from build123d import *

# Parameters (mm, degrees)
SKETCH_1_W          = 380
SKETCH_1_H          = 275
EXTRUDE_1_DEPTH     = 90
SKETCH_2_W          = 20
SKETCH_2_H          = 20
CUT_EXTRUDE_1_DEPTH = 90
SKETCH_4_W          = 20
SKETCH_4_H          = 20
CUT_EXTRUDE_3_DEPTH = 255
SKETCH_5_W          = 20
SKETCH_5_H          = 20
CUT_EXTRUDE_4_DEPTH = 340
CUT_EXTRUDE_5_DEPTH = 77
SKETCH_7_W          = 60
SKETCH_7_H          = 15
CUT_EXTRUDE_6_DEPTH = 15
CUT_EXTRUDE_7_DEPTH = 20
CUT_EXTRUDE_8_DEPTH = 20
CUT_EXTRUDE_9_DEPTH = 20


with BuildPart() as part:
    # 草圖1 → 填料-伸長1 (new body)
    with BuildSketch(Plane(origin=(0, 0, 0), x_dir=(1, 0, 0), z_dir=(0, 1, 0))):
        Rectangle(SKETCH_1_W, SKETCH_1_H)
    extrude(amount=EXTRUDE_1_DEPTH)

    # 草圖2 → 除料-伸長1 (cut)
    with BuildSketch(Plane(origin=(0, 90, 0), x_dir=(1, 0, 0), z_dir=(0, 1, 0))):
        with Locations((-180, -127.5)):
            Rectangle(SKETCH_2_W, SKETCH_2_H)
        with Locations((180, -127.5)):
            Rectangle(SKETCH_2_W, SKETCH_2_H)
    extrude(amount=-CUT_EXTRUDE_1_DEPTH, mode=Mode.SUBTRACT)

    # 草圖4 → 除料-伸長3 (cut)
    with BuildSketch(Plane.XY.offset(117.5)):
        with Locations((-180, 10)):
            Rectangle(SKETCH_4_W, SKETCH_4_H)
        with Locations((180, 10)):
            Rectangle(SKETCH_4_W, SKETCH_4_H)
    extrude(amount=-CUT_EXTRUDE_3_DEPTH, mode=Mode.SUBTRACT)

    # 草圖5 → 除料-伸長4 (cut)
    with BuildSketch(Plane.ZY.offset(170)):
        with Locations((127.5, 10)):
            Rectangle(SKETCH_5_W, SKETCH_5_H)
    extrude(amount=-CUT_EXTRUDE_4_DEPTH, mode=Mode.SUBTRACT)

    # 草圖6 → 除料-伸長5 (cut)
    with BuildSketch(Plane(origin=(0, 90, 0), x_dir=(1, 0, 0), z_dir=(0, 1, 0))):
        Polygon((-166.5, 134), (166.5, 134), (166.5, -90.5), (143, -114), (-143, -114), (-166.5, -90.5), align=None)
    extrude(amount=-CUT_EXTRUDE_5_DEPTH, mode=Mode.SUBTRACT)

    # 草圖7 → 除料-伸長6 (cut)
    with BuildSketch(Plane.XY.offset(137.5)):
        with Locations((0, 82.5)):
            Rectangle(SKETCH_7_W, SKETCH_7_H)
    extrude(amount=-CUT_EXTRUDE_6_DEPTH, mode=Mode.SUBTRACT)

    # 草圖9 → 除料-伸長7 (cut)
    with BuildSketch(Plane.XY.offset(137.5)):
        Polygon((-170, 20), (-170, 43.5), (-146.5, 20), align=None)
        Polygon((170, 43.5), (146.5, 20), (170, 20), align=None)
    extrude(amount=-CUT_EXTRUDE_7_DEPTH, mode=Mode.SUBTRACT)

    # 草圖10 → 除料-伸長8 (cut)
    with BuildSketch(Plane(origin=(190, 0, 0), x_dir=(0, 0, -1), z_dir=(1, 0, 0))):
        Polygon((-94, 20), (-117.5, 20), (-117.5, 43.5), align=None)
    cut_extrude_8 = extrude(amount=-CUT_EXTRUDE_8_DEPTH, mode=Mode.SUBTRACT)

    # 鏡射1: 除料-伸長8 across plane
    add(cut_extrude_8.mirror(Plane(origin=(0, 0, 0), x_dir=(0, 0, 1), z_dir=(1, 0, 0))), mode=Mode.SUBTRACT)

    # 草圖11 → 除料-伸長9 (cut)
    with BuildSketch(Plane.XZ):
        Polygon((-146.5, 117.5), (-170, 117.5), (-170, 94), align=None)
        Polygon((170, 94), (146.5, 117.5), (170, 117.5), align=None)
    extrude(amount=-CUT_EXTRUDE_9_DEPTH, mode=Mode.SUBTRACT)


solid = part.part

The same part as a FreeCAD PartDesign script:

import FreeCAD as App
import Part
import Sketcher

V = App.Vector
Q = App.Units.Quantity

doc = App.newDocument("Part")
params = doc.addObject("Spreadsheet::Sheet", "Params")
for row, (alias, value) in enumerate([
    ("sketch1_width", "380 mm"),
    ("sketch1_height", "275 mm"),
    ("pad1_length", "90 mm"),
    ("sketch2_width", "20 mm"),
    ("pocket1_length", "90 mm"),
    ("sketch3_width", "20 mm"),
    ("pocket2_length", "255 mm"),
    ("sketch4_width", "20 mm"),
    ("pocket3_length", "340 mm"),
    ("sketch5_width", "333 mm"),
    ("sketch5_width2", "286 mm"),
    ("sketch5_height", "224.5 mm"),
    ("pocket4_length", "77 mm"),
    ("sketch6_width", "60 mm"),
    ("sketch6_height", "15 mm"),
    ("pocket5_length", "15 mm"),
    ("sketch7_width", "23.5 mm"),
    ("pocket6_length", "20 mm"),
    ("sketch8_width", "23.5 mm"),
    ("pocket7_length", "20 mm"),
    ("sketch9_width", "23.5 mm"),
    ("pocket8_length", "20 mm"),
], start=1):
    params.set(f"A{row}", alias)
    params.set(f"B{row}", "=" + value)
    params.setAlias(f"B{row}", alias)

body = doc.addObject("PartDesign::Body", "Body")

# Sketch on XZ plane
sketch1 = doc.addObject("Sketcher::SketchObject", "Sketch")
body.addObject(sketch1)
sketch1.AttachmentSupport = (doc.XZ_Plane, [""])
sketch1.MapMode = "FlatFace"
sketch1.addGeometry([
    Part.LineSegment(V(-190, -138, 0), V(-190, 138, 0)),
    Part.LineSegment(V(-190, 138, 0), V(190, 138, 0)),
    Part.LineSegment(V(190, 138, 0), V(190, -138, 0)),
    Part.LineSegment(V(190, -138, 0), V(-190, -138, 0)),
], False)
sketch1.addConstraint([
    Sketcher.Constraint("Coincident", 0, 2, 1, 1),
    Sketcher.Constraint("Coincident", 1, 2, 2, 1),
    Sketcher.Constraint("Coincident", 2, 2, 3, 1),
    Sketcher.Constraint("Coincident", 3, 2, 0, 1),
    Sketcher.Constraint("Vertical", 0),
    Sketcher.Constraint("Horizontal", 1),
    Sketcher.Constraint("Vertical", 2),
    Sketcher.Constraint("Horizontal", 3),
    Sketcher.Constraint("Symmetric", 0, 2, 2, 2, -1, 1),
    Sketcher.Constraint("DistanceX", 1, 1, 1, 2, Q("380 mm")),
    Sketcher.Constraint("DistanceY", 0, 1, 0, 2, Q("275 mm")),
])
sketch1.setExpression("Constraints[9]", "Params.sketch1_width")
sketch1.setExpression("Constraints[10]", "Params.sketch1_height")
pad1 = doc.addObject("PartDesign::Pad", "Pad")
body.addObject(pad1)
pad1.Profile = sketch1
pad1.setExpression("Length", "Params.pad1_length")
pad1.Reversed = True

# Sketch on XZ plane
sketch2 = doc.addObject("Sketcher::SketchObject", "Sketch001")
body.addObject(sketch2)
sketch2.AttachmentSupport = (doc.XZ_Plane, [""])
sketch2.MapMode = "FlatFace"
sketch2.AttachmentOffset = App.Placement(V(0, 0, -90), App.Rotation())
sketch2.addGeometry([
    Part.LineSegment(V(-190, 118, 0), V(-190, 138, 0)),  # 0
    Part.LineSegment(V(-190, 138, 0), V(-170, 138, 0)),  # 1
    Part.LineSegment(V(-170, 138, 0), V(-170, 118, 0)),  # 2
    Part.LineSegment(V(-170, 118, 0), V(-190, 118, 0)),  # 3
    Part.LineSegment(V(170, 118, 0), V(170, 138, 0)),  # 4
    Part.LineSegment(V(170, 138, 0), V(190, 138, 0)),  # 5
    Part.LineSegment(V(190, 138, 0), V(190, 118, 0)),  # 6
    Part.LineSegment(V(190, 118, 0), V(170, 118, 0)),  # 7
], False)
sketch2.addConstraint([
    Sketcher.Constraint("Coincident", 0, 2, 1, 1),
    Sketcher.Constraint("Coincident", 1, 2, 2, 1),
    Sketcher.Constraint("Coincident", 2, 2, 3, 1),
    Sketcher.Constraint("Coincident", 3, 2, 0, 1),
    Sketcher.Constraint("Coincident", 4, 2, 5, 1),
    Sketcher.Constraint("Coincident", 5, 2, 6, 1),
    Sketcher.Constraint("Coincident", 6, 2, 7, 1),
    Sketcher.Constraint("Coincident", 7, 2, 4, 1),
    Sketcher.Constraint("Vertical", 0),
    Sketcher.Constraint("Horizontal", 1),
    Sketcher.Constraint("Vertical", 2),
    Sketcher.Constraint("Horizontal", 3),
    Sketcher.Constraint("Vertical", 4),
    Sketcher.Constraint("Horizontal", 5),
    Sketcher.Constraint("Vertical", 6),
    Sketcher.Constraint("Horizontal", 7),
    Sketcher.Constraint("Symmetric", 1, 2, 4, 2, -2),
    Sketcher.Constraint("Symmetric", 3, 2, 6, 2, -2),
    Sketcher.Constraint("Equal", 7, 0),
    Sketcher.Constraint("DistanceX", 1, 1, 1, 2, Q("20 mm")),
    Sketcher.Constraint("DistanceX", 0, 2, -1, 1, Q("190 mm")),
    Sketcher.Constraint("DistanceY", -1, 1, 0, 2, Q("137.5 mm")),
])
sketch2.setExpression("Constraints[19]", "Params.sketch2_width")
pocket1 = doc.addObject("PartDesign::Pocket", "Pocket")
body.addObject(pocket1)
pocket1.Profile = sketch2
pocket1.setExpression("Length", "Params.pocket1_length")
pocket1.Reversed = True

# Sketch on XY plane
sketch3 = doc.addObject("Sketcher::SketchObject", "Sketch002")
body.addObject(sketch3)
sketch3.AttachmentSupport = (doc.XY_Plane, [""])
sketch3.MapMode = "FlatFace"
sketch3.AttachmentOffset = App.Placement(V(0, 0, 117.5), App.Rotation())
sketch3.addGeometry([
    Part.LineSegment(V(-190, 20, 0), V(-190, 0, 0)),  # 0
    Part.LineSegment(V(-190, 0, 0), V(-170, 0, 0)),  # 1
    Part.LineSegment(V(-170, 0, 0), V(-170, 20, 0)),  # 2
    Part.LineSegment(V(-170, 20, 0), V(-190, 20, 0)),  # 3
    Part.LineSegment(V(170, 20, 0), V(170, 0, 0)),  # 4
    Part.LineSegment(V(170, 0, 0), V(190, 0, 0)),  # 5
    Part.LineSegment(V(190, 0, 0), V(190, 20, 0)),  # 6
    Part.LineSegment(V(190, 20, 0), V(170, 20, 0)),  # 7
], False)
sketch3.addConstraint([
    Sketcher.Constraint("Coincident", 0, 2, 1, 1),
    Sketcher.Constraint("Coincident", 1, 2, 2, 1),
    Sketcher.Constraint("Coincident", 2, 2, 3, 1),
    Sketcher.Constraint("Coincident", 3, 2, 0, 1),
    Sketcher.Constraint("Coincident", 4, 2, 5, 1),
    Sketcher.Constraint("Coincident", 5, 2, 6, 1),
    Sketcher.Constraint("Coincident", 6, 2, 7, 1),
    Sketcher.Constraint("Coincident", 7, 2, 4, 1),
    Sketcher.Constraint("Vertical", 0),
    Sketcher.Constraint("Horizontal", 1),
    Sketcher.Constraint("Vertical", 2),
    Sketcher.Constraint("Horizontal", 3),
    Sketcher.Constraint("Vertical", 4),
    Sketcher.Constraint("Horizontal", 5),
    Sketcher.Constraint("Vertical", 6),
    Sketcher.Constraint("Horizontal", 7),
    Sketcher.Constraint("Symmetric", 1, 2, 4, 2, -1, 1),
    Sketcher.Constraint("Symmetric", 0, 2, 5, 2, -2),
    Sketcher.Constraint("Horizontal", 3, 2, 6, 2),
    Sketcher.Constraint("Equal", 7, 0),
    Sketcher.Constraint("DistanceX", 1, 1, 1, 2, Q("20 mm")),
    Sketcher.Constraint("DistanceX", 0, 2, -1, 1, Q("190 mm")),
])
sketch3.setExpression("Constraints[20]", "Params.sketch3_width")
pocket2 = doc.addObject("PartDesign::Pocket", "Pocket001")
body.addObject(pocket2)
pocket2.Profile = sketch3
pocket2.setExpression("Length", "Params.pocket2_length")

# Sketch on YZ plane
sketch4 = doc.addObject("Sketcher::SketchObject", "Sketch003")
body.addObject(sketch4)
sketch4.AttachmentSupport = (doc.YZ_Plane, [""])
sketch4.MapMode = "FlatFace"
sketch4.AttachmentOffset = App.Placement(V(0, 0, -170), App.Rotation())
sketch4.addGeometry([
    Part.LineSegment(V(20, 118, 0), V(0, 118, 0)),
    Part.LineSegment(V(0, 118, 0), V(0, 138, 0)),
    Part.LineSegment(V(0, 138, 0), V(20, 138, 0)),
    Part.LineSegment(V(20, 138, 0), V(20, 118, 0)),
], False)
sketch4.addConstraint([
    Sketcher.Constraint("Coincident", 0, 2, 1, 1),
    Sketcher.Constraint("Coincident", 1, 2, 2, 1),
    Sketcher.Constraint("Coincident", 2, 2, 3, 1),
    Sketcher.Constraint("Coincident", 3, 2, 0, 1),
    Sketcher.Constraint("Horizontal", 0),
    Sketcher.Constraint("Vertical", 1),
    Sketcher.Constraint("Horizontal", 2),
    Sketcher.Constraint("Vertical", 3),
    Sketcher.Constraint("PointOnObject", 0, 2, -2),
    Sketcher.Constraint("Equal", 2, 1),
    Sketcher.Constraint("DistanceX", 0, 2, 0, 1, Q("20 mm")),
    Sketcher.Constraint("DistanceY", -1, 1, 0, 2, Q("117.5 mm")),
])
sketch4.setExpression("Constraints[10]", "Params.sketch4_width")
pocket3 = doc.addObject("PartDesign::Pocket", "Pocket002")
body.addObject(pocket3)
pocket3.Profile = sketch4
pocket3.setExpression("Length", "Params.pocket3_length")
pocket3.Reversed = True

# Sketch on XZ plane
sketch5 = doc.addObject("Sketcher::SketchObject", "Sketch004")
body.addObject(sketch5)
sketch5.AttachmentSupport = (doc.XZ_Plane, [""])
sketch5.MapMode = "FlatFace"
sketch5.AttachmentOffset = App.Placement(V(0, 0, -90), App.Rotation())
sketch5.addGeometry([
    Part.LineSegment(V(166, -134, 0), V(-166, -134, 0)),  # 0
    Part.LineSegment(V(-166, -134, 0), V(-166, 90, 0)),  # 1
    Part.LineSegment(V(-166, 90, 0), V(-143, 114, 0)),  # 2
    Part.LineSegment(V(-143, 114, 0), V(143, 114, 0)),  # 3
    Part.LineSegment(V(143, 114, 0), V(166, 90, 0)),  # 4
    Part.LineSegment(V(166, 90, 0), V(166, -134, 0)),  # 5
], False)
sketch5.addConstraint([
    Sketcher.Constraint("Coincident", 0, 2, 1, 1),
    Sketcher.Constraint("Coincident", 1, 2, 2, 1),
    Sketcher.Constraint("Coincident", 2, 2, 3, 1),
    Sketcher.Constraint("Coincident", 3, 2, 4, 1),
    Sketcher.Constraint("Coincident", 4, 2, 5, 1),
    Sketcher.Constraint("Coincident", 5, 2, 0, 1),
    Sketcher.Constraint("Horizontal", 0),
    Sketcher.Constraint("Vertical", 1),
    Sketcher.Constraint("Horizontal", 3),
    Sketcher.Constraint("Vertical", 5),
    Sketcher.Constraint("Symmetric", 1, 2, 4, 2, -2),
    Sketcher.Constraint("Perpendicular", 2, 4),
    Sketcher.Constraint("Equal", 2, 4),
    Sketcher.Constraint("DistanceX", 0, 2, 0, 1, Q("333 mm")),
    Sketcher.Constraint("DistanceX", 3, 1, 3, 2, Q("286 mm")),
    Sketcher.Constraint("DistanceY", 1, 1, 1, 2, Q("224.5 mm")),
    Sketcher.Constraint("DistanceY", 0, 2, -1, 1, Q("134 mm")),
])
sketch5.setExpression("Constraints[13]", "Params.sketch5_width")
sketch5.setExpression("Constraints[14]", "Params.sketch5_width2")
sketch5.setExpression("Constraints[15]", "Params.sketch5_height")
pocket4 = doc.addObject("PartDesign::Pocket", "Pocket003")
body.addObject(pocket4)
pocket4.Profile = sketch5
pocket4.setExpression("Length", "Params.pocket4_length")
pocket4.Reversed = True

# Sketch on XY plane
sketch6 = doc.addObject("Sketcher::SketchObject", "Sketch005")
body.addObject(sketch6)
sketch6.AttachmentSupport = (doc.XY_Plane, [""])
sketch6.MapMode = "FlatFace"
sketch6.AttachmentOffset = App.Placement(V(0, 0, 137.5), App.Rotation())
sketch6.addGeometry([
    Part.LineSegment(V(-30, 90, 0), V(-30, 75, 0)),
    Part.LineSegment(V(-30, 75, 0), V(30, 75, 0)),
    Part.LineSegment(V(30, 75, 0), V(30, 90, 0)),
    Part.LineSegment(V(30, 90, 0), V(-30, 90, 0)),
], False)
sketch6.addConstraint([
    Sketcher.Constraint("Coincident", 0, 2, 1, 1),
    Sketcher.Constraint("Coincident", 1, 2, 2, 1),
    Sketcher.Constraint("Coincident", 2, 2, 3, 1),
    Sketcher.Constraint("Coincident", 3, 2, 0, 1),
    Sketcher.Constraint("Vertical", 0),
    Sketcher.Constraint("Horizontal", 1),
    Sketcher.Constraint("Vertical", 2),
    Sketcher.Constraint("Horizontal", 3),
    Sketcher.Constraint("DistanceX", 1, 1, 1, 2, Q("60 mm")),
    Sketcher.Constraint("DistanceY", 0, 2, 0, 1, Q("15 mm")),
    Sketcher.Constraint("DistanceX", 0, 2, -1, 1, Q("30 mm")),
    Sketcher.Constraint("DistanceY", -1, 1, 0, 2, Q("75 mm")),
])
sketch6.setExpression("Constraints[8]", "Params.sketch6_width")
sketch6.setExpression("Constraints[9]", "Params.sketch6_height")
pocket5 = doc.addObject("PartDesign::Pocket", "Pocket004")
body.addObject(pocket5)
pocket5.Profile = sketch6
pocket5.setExpression("Length", "Params.pocket5_length")

# Sketch on XY plane
sketch7 = doc.addObject("Sketcher::SketchObject", "Sketch006")
body.addObject(sketch7)
sketch7.AttachmentSupport = (doc.XY_Plane, [""])
sketch7.MapMode = "FlatFace"
sketch7.AttachmentOffset = App.Placement(V(0, 0, 137.5), App.Rotation())
sketch7.addGeometry([
    Part.LineSegment(V(-170, 44, 0), V(-170, 20, 0)),  # 0
    Part.LineSegment(V(-170, 20, 0), V(-146, 20, 0)),  # 1
    Part.LineSegment(V(-146, 20, 0), V(-170, 44, 0)),  # 2
    Part.LineSegment(V(170, 44, 0), V(146, 20, 0)),  # 3
    Part.LineSegment(V(146, 20, 0), V(170, 20, 0)),  # 4
    Part.LineSegment(V(170, 20, 0), V(170, 44, 0)),  # 5
], False)
sketch7.addConstraint([
    Sketcher.Constraint("Coincident", 0, 2, 1, 1),
    Sketcher.Constraint("Coincident", 1, 2, 2, 1),
    Sketcher.Constraint("Coincident", 2, 2, 0, 1),
    Sketcher.Constraint("Coincident", 3, 2, 4, 1),
    Sketcher.Constraint("Coincident", 4, 2, 5, 1),
    Sketcher.Constraint("Coincident", 5, 2, 3, 1),
    Sketcher.Constraint("Vertical", 0),
    Sketcher.Constraint("Horizontal", 1),
    Sketcher.Constraint("Horizontal", 4),
    Sketcher.Constraint("Vertical", 5),
    Sketcher.Constraint("Symmetric", 1, 2, 3, 2, -2),
    Sketcher.Constraint("Symmetric", 2, 2, 5, 2, -2),
    Sketcher.Constraint("Perpendicular", 2, 3),
    Sketcher.Constraint("DistanceX", 1, 1, 1, 2, Q("23.5 mm")),
    Sketcher.Constraint("DistanceX", 0, 2, -1, 1, Q("170 mm")),
    Sketcher.Constraint("DistanceY", -1, 1, 0, 2, Q("20 mm")),
])
sketch7.setExpression("Constraints[13]", "Params.sketch7_width")
pocket6 = doc.addObject("PartDesign::Pocket", "Pocket005")
body.addObject(pocket6)
pocket6.Profile = sketch7
pocket6.setExpression("Length", "Params.pocket6_length")

# Sketch on YZ plane
sketch8 = doc.addObject("Sketcher::SketchObject", "Sketch007")
body.addObject(sketch8)
sketch8.AttachmentSupport = (doc.YZ_Plane, [""])
sketch8.MapMode = "FlatFace"
sketch8.AttachmentOffset = App.Placement(V(0, 0, 190), App.Rotation())
sketch8.addGeometry([
    Part.LineSegment(V(20, 118, 0), V(20, 94, 0)),
    Part.LineSegment(V(20, 94, 0), V(44, 118, 0)),
    Part.LineSegment(V(44, 118, 0), V(20, 118, 0)),
], False)
sketch8.addConstraint([
    Sketcher.Constraint("Coincident", 0, 2, 1, 1),
    Sketcher.Constraint("Coincident", 1, 2, 2, 1),
    Sketcher.Constraint("Coincident", 2, 2, 0, 1),
    Sketcher.Constraint("Vertical", 0),
    Sketcher.Constraint("Horizontal", 2),
    Sketcher.Constraint("Equal", 2, 0),
    Sketcher.Constraint("DistanceX", 2, 2, 2, 1, Q("23.5 mm")),
    Sketcher.Constraint("DistanceX", -1, 1, 0, 2, Q("20 mm")),
    Sketcher.Constraint("DistanceY", -1, 1, 0, 2, Q("94 mm")),
])
sketch8.setExpression("Constraints[6]", "Params.sketch8_width")
pocket7 = doc.addObject("PartDesign::Pocket", "Pocket006")
body.addObject(pocket7)
pocket7.Profile = sketch8
pocket7.setExpression("Length", "Params.pocket7_length")
doc.recompute()

mirrored = doc.addObject("PartDesign::Mirrored", "Mirrored")
body.addObject(mirrored)
mirrored.Originals = [pocket7]
mirrored.MirrorPlane = (doc.YZ_Plane, [""])
body.Tip = mirrored

# Sketch on XZ plane
sketch9 = doc.addObject("Sketcher::SketchObject", "Sketch008")
body.addObject(sketch9)
sketch9.AttachmentSupport = (doc.XZ_Plane, [""])
sketch9.MapMode = "FlatFace"
sketch9.addGeometry([
    Part.LineSegment(V(-146, 118, 0), V(-170, 118, 0)),  # 0
    Part.LineSegment(V(-170, 118, 0), V(-170, 94, 0)),  # 1
    Part.LineSegment(V(-170, 94, 0), V(-146, 118, 0)),  # 2
    Part.LineSegment(V(146, 118, 0), V(170, 94, 0)),  # 3
    Part.LineSegment(V(170, 94, 0), V(170, 118, 0)),  # 4
    Part.LineSegment(V(170, 118, 0), V(146, 118, 0)),  # 5
], False)
sketch9.addConstraint([
    Sketcher.Constraint("Coincident", 0, 2, 1, 1),
    Sketcher.Constraint("Coincident", 1, 2, 2, 1),
    Sketcher.Constraint("Coincident", 2, 2, 0, 1),
    Sketcher.Constraint("Coincident", 3, 2, 4, 1),
    Sketcher.Constraint("Coincident", 4, 2, 5, 1),
    Sketcher.Constraint("Coincident", 5, 2, 3, 1),
    Sketcher.Constraint("Horizontal", 0),
    Sketcher.Constraint("Vertical", 1),
    Sketcher.Constraint("Vertical", 4),
    Sketcher.Constraint("Horizontal", 5),
    Sketcher.Constraint("Symmetric", 1, 2, 3, 2, -2),
    Sketcher.Constraint("Symmetric", 2, 2, 5, 2, -2),
    Sketcher.Constraint("Perpendicular", 2, 3),
    Sketcher.Constraint("DistanceX", 0, 2, 0, 1, Q("23.5 mm")),
    Sketcher.Constraint("DistanceX", 0, 2, -1, 1, Q("170 mm")),
    Sketcher.Constraint("DistanceY", -1, 1, 1, 2, Q("94 mm")),
])
sketch9.setExpression("Constraints[13]", "Params.sketch9_width")
pocket8 = doc.addObject("PartDesign::Pocket", "Pocket007")
body.addObject(pocket8)
pocket8.Profile = sketch9
pocket8.setExpression("Length", "Params.pocket8_length")

doc.recompute()
